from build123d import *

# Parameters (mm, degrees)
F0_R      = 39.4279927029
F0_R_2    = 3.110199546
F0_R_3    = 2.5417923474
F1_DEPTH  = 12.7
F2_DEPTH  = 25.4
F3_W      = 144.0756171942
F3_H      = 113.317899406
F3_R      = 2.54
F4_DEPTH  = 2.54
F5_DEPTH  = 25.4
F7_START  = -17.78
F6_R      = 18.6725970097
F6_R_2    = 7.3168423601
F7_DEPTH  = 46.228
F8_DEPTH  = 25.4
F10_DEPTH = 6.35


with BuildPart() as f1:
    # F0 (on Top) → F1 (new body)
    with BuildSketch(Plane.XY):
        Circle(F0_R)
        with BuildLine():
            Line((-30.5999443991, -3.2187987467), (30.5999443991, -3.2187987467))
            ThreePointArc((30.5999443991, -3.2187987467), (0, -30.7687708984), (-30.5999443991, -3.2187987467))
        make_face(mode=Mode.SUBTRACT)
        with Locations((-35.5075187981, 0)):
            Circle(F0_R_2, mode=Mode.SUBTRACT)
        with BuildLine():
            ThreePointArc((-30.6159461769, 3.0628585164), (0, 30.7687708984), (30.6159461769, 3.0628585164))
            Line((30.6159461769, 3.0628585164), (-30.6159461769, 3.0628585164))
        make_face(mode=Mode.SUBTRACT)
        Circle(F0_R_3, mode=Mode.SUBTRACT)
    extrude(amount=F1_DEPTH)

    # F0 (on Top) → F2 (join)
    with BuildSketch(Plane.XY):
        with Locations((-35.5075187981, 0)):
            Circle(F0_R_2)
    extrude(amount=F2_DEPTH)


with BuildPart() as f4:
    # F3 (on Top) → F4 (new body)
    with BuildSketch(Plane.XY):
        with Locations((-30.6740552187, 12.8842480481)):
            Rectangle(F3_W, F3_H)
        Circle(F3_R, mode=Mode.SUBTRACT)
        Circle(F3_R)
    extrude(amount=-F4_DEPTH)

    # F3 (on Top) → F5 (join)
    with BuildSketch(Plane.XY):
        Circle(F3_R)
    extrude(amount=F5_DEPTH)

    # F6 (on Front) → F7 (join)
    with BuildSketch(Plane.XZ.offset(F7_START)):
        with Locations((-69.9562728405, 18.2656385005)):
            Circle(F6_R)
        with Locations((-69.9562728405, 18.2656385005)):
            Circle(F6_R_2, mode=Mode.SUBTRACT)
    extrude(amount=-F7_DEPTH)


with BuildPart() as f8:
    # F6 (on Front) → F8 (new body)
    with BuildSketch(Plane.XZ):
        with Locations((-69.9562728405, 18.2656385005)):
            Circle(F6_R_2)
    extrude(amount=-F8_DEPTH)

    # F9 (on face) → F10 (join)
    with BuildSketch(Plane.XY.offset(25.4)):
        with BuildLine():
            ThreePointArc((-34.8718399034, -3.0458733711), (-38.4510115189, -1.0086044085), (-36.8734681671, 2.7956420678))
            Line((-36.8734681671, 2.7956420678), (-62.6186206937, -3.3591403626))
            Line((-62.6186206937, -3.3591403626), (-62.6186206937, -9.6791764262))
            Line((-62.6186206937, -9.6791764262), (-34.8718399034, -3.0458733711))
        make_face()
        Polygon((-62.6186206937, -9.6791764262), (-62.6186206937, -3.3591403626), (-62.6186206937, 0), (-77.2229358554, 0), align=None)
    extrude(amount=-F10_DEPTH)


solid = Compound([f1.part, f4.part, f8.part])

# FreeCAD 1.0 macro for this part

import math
import FreeCAD as App
import Part
import Sketcher
Q = App.Units.Quantity

doc = App.newDocument("Part")
body = doc.addObject("PartDesign::Body", "Body")

sketch1 = body.newObject("Sketcher::SketchObject", "Sketch")
sketch1.AttachmentSupport = (doc.getObject("XY_Plane"), [""])
sketch1.MapMode = "FlatFace"
sketch1.addGeometry([
    Part.Circle(App.Vector(0, 0, 0), App.Vector(0, 0, 1), 39.4),
    Part.ArcOfCircle(Part.Circle(App.Vector(0, 0, 0), App.Vector(0, 0, 1), 30.8), math.radians(-174), math.radians(-6)),
    Part.LineSegment(App.Vector(-30.6, -3.2, 0), App.Vector(30.6, -3.2, 0)),
    Part.Circle(App.Vector(-35.5, 0, 0), App.Vector(0, 0, 1), 3.1),
    Part.Circle(App.Vector(0, 0, 0), App.Vector(0, 0, 1), 2.5),
    Part.LineSegment(App.Vector(30.6, 3.1, 0), App.Vector(-30.6, 3.1, 0)),
    Part.ArcOfCircle(Part.Circle(App.Vector(0, 0, 0), App.Vector(0, 0, 1), 30.8), math.radians(6), math.radians(174)),
], False)
sketch1.addConstraint([
    Sketcher.Constraint("Coincident", 1, 1, 2, 1),
    Sketcher.Constraint("Coincident", 2, 2, 1, 2),
    Sketcher.Constraint("Coincident", 5, 1, 6, 1),
    Sketcher.Constraint("Coincident", 6, 2, 5, 2),
    Sketcher.Constraint("Horizontal", 2),
    Sketcher.Constraint("Horizontal", 5),
    Sketcher.Constraint("Coincident", 0, 3, -1, 1),
    Sketcher.Constraint("Coincident", 1, 3, -1, 1),
    Sketcher.Constraint("Coincident", 4, 3, -1, 1),
    Sketcher.Constraint("Coincident", 6, 3, -1, 1),
    Sketcher.Constraint("Equal", 1, 6),
    Sketcher.Constraint("PointOnObject", 3, 3, -1),
    Sketcher.Constraint("Diameter", 3, 6.220399),
    Sketcher.Constraint("Radius", 1, 30.768771),
    Sketcher.Constraint("Diameter", 0, 78.855985),
    Sketcher.Constraint("Diameter", 4, 5.083585),
    Sketcher.Constraint("DistanceX", 2, 1, 2, 2, 61.199889),
    Sketcher.Constraint("DistanceX", 2, 2, 5, 1, 0.016002),
    Sketcher.Constraint("DistanceX", 3, 3, -1, 1, 35.507519),
])
pad1 = body.newObject("PartDesign::Pad", "Pad")
pad1.Profile = sketch1
pad1.Length = Q("0.5 in")

sketch2 = body.newObject("Sketcher::SketchObject", "Sketch001")
sketch2.AttachmentSupport = (doc.getObject("XY_Plane"), [""])
sketch2.MapMode = "FlatFace"
sketch2.addGeometry(Part.Circle(App.Vector(-35.5, 0, 0), App.Vector(0, 0, 1), 3.1), False)
sketch2.addConstraint([
    Sketcher.Constraint("PointOnObject", 0, 3, -1),
    Sketcher.Constraint("Diameter", 0, 6.220399),
    Sketcher.Constraint("DistanceX", 0, 3, -1, 1, 35.507519),
])
pad2 = body.newObject("PartDesign::Pad", "Pad001")
pad2.Profile = sketch2
pad2.Length = Q("1 in")
body2 = doc.addObject("PartDesign::Body", "Body001")

sketch3 = body2.newObject("Sketcher::SketchObject", "Sketch002")
sketch3.AttachmentSupport = (doc.getObject("XY_Plane001"), [""])
sketch3.MapMode = "FlatFace"
sketch3.addGeometry([
    Part.LineSegment(App.Vector(-103, 70, 0), App.Vector(-103, -44, 0)),
    Part.LineSegment(App.Vector(-103, -44, 0), App.Vector(41, -44, 0)),
    Part.LineSegment(App.Vector(41, -44, 0), App.Vector(41, 70, 0)),
    Part.LineSegment(App.Vector(41, 70, 0), App.Vector(-103, 70, 0)),
], False)
sketch3.addConstraint([
    Sketcher.Constraint("Coincident", 0, 2, 1, 1),
    Sketcher.Constraint("Coincident", 1, 2, 2, 1),
    Sketcher.Constraint("Coincident", 2, 2, 3, 1),
    Sketcher.Constraint("Coincident", 3, 2, 0, 1),
    Sketcher.Constraint("Vertical", 0),
    Sketcher.Constraint("Horizontal", 1),
    Sketcher.Constraint("Vertical", 2),
    Sketcher.Constraint("Horizontal", 3),
    Sketcher.Constraint("DistanceY", 0, 2, 0, 1, 113.317899),
    Sketcher.Constraint("DistanceY", 0, 2, -1, 1, 43.774702),
    Sketcher.Constraint("DistanceX", 1, 1, 1, 2, 144.075617),
    Sketcher.Constraint("DistanceX", 0, 2, -1, 1, 102.711864),
])
pad3 = body2.newObject("PartDesign::Pad", "Pad002")
pad3.Profile = sketch3
pad3.Length = Q("0.1 in")
pad3.Reversed = True

sketch4 = body2.newObject("Sketcher::SketchObject", "Sketch003")
sketch4.AttachmentSupport = (doc.getObject("XY_Plane001"), [""])
sketch4.MapMode = "FlatFace"
sketch4.addGeometry(Part.Circle(App.Vector(0, 0, 0), App.Vector(0, 0, 1), 2.5), False)
sketch4.addConstraint([
    Sketcher.Constraint("Coincident", 0, 3, -1, 1),
    Sketcher.Constraint("Diameter", 0, Q("0.2 in")),
])
pad4 = body2.newObject("PartDesign::Pad", "Pad003")
pad4.Profile = sketch4
pad4.Length = Q("1 in")

sketch5 = body2.newObject("Sketcher::SketchObject", "Sketch004")
sketch5.AttachmentSupport = (doc.getObject("XZ_Plane001"), [""])
sketch5.MapMode = "FlatFace"
sketch5.AttachmentOffset = App.Placement(App.Vector(0, 0, -0.7 * 25.4), App.Rotation())
sketch5.addGeometry([
    Part.Circle(App.Vector(-70, 18, 0), App.Vector(0, 0, 1), 19),
    Part.Circle(App.Vector(-70, 18, 0), App.Vector(0, 0, 1), 7),
], False)
sketch5.addConstraint([
    Sketcher.Constraint("Coincident", 1, 3, 0, 3),
    Sketcher.Constraint("Diameter", 0, 37.345194),
    Sketcher.Constraint("Diameter", 1, 14.633685),
    Sketcher.Constraint("DistanceY", -1, 1, 0, 3, 18.265639),
    Sketcher.Constraint("DistanceX", 0, 3, -1, 1, 69.956273),
])
pad5 = body2.newObject("PartDesign::Pad", "Pad004")
pad5.Profile = sketch5
pad5.Length = Q("1.82 in")
pad5.Reversed = True
body3 = doc.addObject("PartDesign::Body", "Body002")

sketch6 = body3.newObject("Sketcher::SketchObject", "Sketch005")
sketch6.AttachmentSupport = (doc.getObject("XZ_Plane002"), [""])
sketch6.MapMode = "FlatFace"
sketch6.addGeometry(Part.Circle(App.Vector(-70, 18, 0), App.Vector(0, 0, 1), 7), False)
sketch6.addConstraint([
    Sketcher.Constraint("Diameter", 0, 14.633685),
    Sketcher.Constraint("DistanceY", -1, 1, 0, 3, 18.265639),
    Sketcher.Constraint("DistanceX", 0, 3, -1, 1, 69.956273),
])
pad6 = body3.newObject("PartDesign::Pad", "Pad005")
pad6.Profile = sketch6
pad6.Length = Q("1 in")
pad6.Reversed = True

sketch7 = body3.newObject("Sketcher::SketchObject", "Sketch006")
sketch7.AttachmentSupport = (doc.getObject("XY_Plane002"), [""])
sketch7.MapMode = "FlatFace"
sketch7.AttachmentOffset = App.Placement(App.Vector(0, 0, 1 * 25.4), App.Rotation())
sketch7.addGeometry([
    Part.ArcOfCircle(Part.Circle(App.Vector(-35.5, 0, 0), App.Vector(0, 0, 1), 3.1), math.radians(116), math.radians(282)),
    Part.LineSegment(App.Vector(-36.9, 2.8, 0), App.Vector(-62.6, -3.4, 0)),
    Part.LineSegment(App.Vector(-62.6, -3.4, 0), App.Vector(-62.6, 0, 0)),
    Part.LineSegment(App.Vector(-62.6, 0, 0), App.Vector(-77.2, 0, 0)),
    Part.LineSegment(App.Vector(-77.2, 0, 0), App.Vector(-62.6, -9.7, 0)),
    Part.LineSegment(App.Vector(-62.6, -9.7, 0), App.Vector(-34.9, -3, 0)),
], False)
sketch7.addConstraint([
    Sketcher.Constraint("Coincident", 0, 1, 1, 1),
    Sketcher.Constraint("Coincident", 1, 2, 2, 1),
    Sketcher.Constraint("Coincident", 2, 2, 3, 1),
    Sketcher.Constraint("Coincident", 3, 2, 4, 1),
    Sketcher.Constraint("Coincident", 4, 2, 5, 1),
    Sketcher.Constraint("Coincident", 5, 2, 0, 2),
    Sketcher.Constraint("Vertical", 2),
    Sketcher.Constraint("Horizontal", 3),
    Sketcher.Constraint("PointOnObject", 0, 3, -1),
    Sketcher.Constraint("PointOnObject", 2, 2, -1),
    Sketcher.Constraint("Parallel", 1, 5),
    Sketcher.Constraint("Vertical", 2, 2, 4, 2),
    Sketcher.Constraint("Radius", 0, Q("0.1225 in")),
    Sketcher.Constraint("DistanceX", 1, 2, -1, 1, Q("2.4653 in")),
    Sketcher.Constraint("DistanceY", 2, 1, 2, 2, 3.35914),
    Sketcher.Constraint("DistanceX", 1, 2, 0, 3, 27.111102),
    Sketcher.Constraint("Distance", 1, 26.470629),
    Sketcher.Constraint("Distance", 4, 17.52063),
    Sketcher.Constraint("Distance", 5, 28.528662),
])
pad7 = body3.newObject("PartDesign::Pad", "Pad006")
pad7.Profile = sketch7
pad7.Length = Q("0.25 in")
pad7.Reversed = True

doc.recompute()
